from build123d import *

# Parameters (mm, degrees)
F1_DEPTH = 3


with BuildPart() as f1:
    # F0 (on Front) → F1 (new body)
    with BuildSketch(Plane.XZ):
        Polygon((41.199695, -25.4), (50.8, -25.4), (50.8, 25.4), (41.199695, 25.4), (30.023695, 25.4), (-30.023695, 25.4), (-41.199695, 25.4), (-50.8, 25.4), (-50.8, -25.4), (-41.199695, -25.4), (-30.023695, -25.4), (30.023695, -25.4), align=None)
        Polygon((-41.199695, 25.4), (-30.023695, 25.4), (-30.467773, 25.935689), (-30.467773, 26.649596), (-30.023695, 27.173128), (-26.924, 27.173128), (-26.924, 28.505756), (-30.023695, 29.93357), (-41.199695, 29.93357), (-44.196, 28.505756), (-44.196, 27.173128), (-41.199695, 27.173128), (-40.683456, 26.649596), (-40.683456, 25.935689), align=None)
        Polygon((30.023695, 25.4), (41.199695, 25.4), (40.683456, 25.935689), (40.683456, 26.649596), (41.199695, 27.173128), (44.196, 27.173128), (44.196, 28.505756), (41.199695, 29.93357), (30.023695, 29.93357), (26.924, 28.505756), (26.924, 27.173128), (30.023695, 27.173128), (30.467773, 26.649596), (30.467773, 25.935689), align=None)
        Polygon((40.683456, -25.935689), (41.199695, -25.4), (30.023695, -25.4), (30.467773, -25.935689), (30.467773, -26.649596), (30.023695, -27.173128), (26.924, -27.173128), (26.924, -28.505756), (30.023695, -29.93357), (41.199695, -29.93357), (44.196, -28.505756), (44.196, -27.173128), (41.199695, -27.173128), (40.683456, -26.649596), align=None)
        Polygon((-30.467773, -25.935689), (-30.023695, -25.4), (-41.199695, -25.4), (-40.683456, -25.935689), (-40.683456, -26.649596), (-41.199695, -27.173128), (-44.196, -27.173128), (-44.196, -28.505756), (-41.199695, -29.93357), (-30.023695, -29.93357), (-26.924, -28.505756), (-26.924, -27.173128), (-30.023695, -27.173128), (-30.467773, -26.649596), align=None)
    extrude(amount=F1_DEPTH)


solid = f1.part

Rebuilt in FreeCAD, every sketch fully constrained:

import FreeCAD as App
import Part
import Sketcher
from FreeCAD import Vector
Q = App.Units.Quantity


def add_polygon(sketch, points):
    """Adds a closed chain of lines whose ends are joined by coincident constraints."""
    first, n = sketch.GeometryCount, len(points)
    for a, b in zip(points, points[1:] + points[:1]):
        sketch.addGeometry(Part.LineSegment(App.Vector(*a, 0), App.Vector(*b, 0)), False)
    for i in range(n):
        sketch.addConstraint(Sketcher.Constraint("Coincident", first + i, 2, first + (i + 1) % n, 1))

doc = App.newDocument("Part")
body = doc.addObject("PartDesign::Body", "Body")

# Sketch on XZ plane
sketch1 = body.newObject("Sketcher::SketchObject", "Sketch")
sketch1.AttachmentSupport = (doc.getObject("XZ_Plane"), [""])
sketch1.MapMode = "FlatFace"
add_polygon(sketch1, [(50.8, -25.4), (50.8, 25.4), (41.2, 25.4), (40.7, 25.9), (40.7, 26.6), (41.2, 27.2), (44.2, 27.2), (44.2, 28.5), (41.2, 29.9), (30, 29.9), (26.9, 28.5), (26.9, 27.2), (30, 27.2), (30.5, 26.6), (30.5, 25.9), (30, 25.4), (-30, 25.4), (-30.5, 25.9), (-30.5, 26.6), (-30, 27.2), (-26.9, 27.2), (-26.9, 28.5), (-30, 29.9), (-41.2, 29.9), (-44.2, 28.5), (-44.2, 27.2), (-41.2, 27.2), (-40.7, 26.6), (-40.7, 25.9), (-41.2, 25.4), (-50.8, 25.4), (-50.8, -25.4), (-41.2, -25.4), (-40.7, -25.9), (-40.7, -26.6), (-41.2, -27.2), (-44.2, -27.2), (-44.2, -28.5), (-41.2, -29.9), (-30, -29.9), (-26.9, -28.5), (-26.9, -27.2), (-30, -27.2), (-30.5, -26.6), (-30.5, -25.9), (-30, -25.4), (30, -25.4), (30.5, -25.9), (30.5, -26.6), (30, -27.2), (26.9, -27.2), (26.9, -28.5), (30, -29.9), (41.2, -29.9), (44.2, -28.5), (44.2, -27.2), (41.2, -27.2), (40.7, -26.6), (40.7, -25.9), (41.2, -25.4)])  # lines 0-59
sketch1.addConstraint([
    Sketcher.Constraint("Vertical", 0),
    Sketcher.Constraint("Horizontal", 1),
    Sketcher.Constraint("Vertical", 3),
    Sketcher.Constraint("Horizontal", 5),
    Sketcher.Constraint("Vertical", 6),
    Sketcher.Constraint("Horizontal", 8),
    Sketcher.Constraint("Vertical", 10),
    Sketcher.Constraint("Horizontal", 11),
    Sketcher.Constraint("Vertical", 13),
    Sketcher.Constraint("Horizontal", 15),
    Sketcher.Constraint("Vertical", 17),
    Sketcher.Constraint("Horizontal", 19),
    Sketcher.Constraint("Vertical", 20),
    Sketcher.Constraint("Horizontal", 22),
    Sketcher.Constraint("Vertical", 24),
    Sketcher.Constraint("Horizontal", 25),
    Sketcher.Constraint("Vertical", 27),
    Sketcher.Constraint("Horizontal", 29),
    Sketcher.Constraint("Vertical", 30),
    Sketcher.Constraint("Horizontal", 31),
    Sketcher.Constraint("Vertical", 33),
    Sketcher.Constraint("Horizontal", 35),
    Sketcher.Constraint("Vertical", 36),
    Sketcher.Constraint("Horizontal", 38),
    Sketcher.Constraint("Vertical", 40),
    Sketcher.Constraint("Horizontal", 41),
    Sketcher.Constraint("Vertical", 43),
    Sketcher.Constraint("Horizontal", 45),
    Sketcher.Constraint("Vertical", 47),
    Sketcher.Constraint("Horizontal", 49),
    Sketcher.Constraint("Vertical", 50),
    Sketcher.Constraint("Horizontal", 52),
    Sketcher.Constraint("Vertical", 54),
    Sketcher.Constraint("Horizontal", 55),
    Sketcher.Constraint("Vertical", 57),
    Sketcher.Constraint("Horizontal", 59),
    Sketcher.Constraint("Symmetric", 0, 2, 30, 2, -1, 1),
    Sketcher.Constraint("Symmetric", 2, 2, 32, 2, -1, 1),
    Sketcher.Constraint("Symmetric", 4, 2, 34, 2, -1, 1),
    Sketcher.Constraint("Symmetric", 6, 2, 36, 2, -1, 1),
    Sketcher.Constraint("Symmetric", 7, 2, 37, 2, -1, 1),
    Sketcher.Constraint("Symmetric", 9, 2, 39, 2, -1, 1),
    Sketcher.Constraint("Symmetric", 11, 2, 41, 2, -1, 1),
    Sketcher.Constraint("Symmetric", 12, 2, 42, 2, -1, 1),
    Sketcher.Constraint("Symmetric", 14, 2, 44, 2, -1, 1),
    Sketcher.Constraint("Symmetric", 16, 2, 46, 2, -1, 1),
    Sketcher.Constraint("Symmetric", 18, 2, 48, 2, -1, 1),
    Sketcher.Constraint("Symmetric", 20, 2, 50, 2, -1, 1),
    Sketcher.Constraint("Symmetric", 21, 2, 51, 2, -1, 1),
    Sketcher.Constraint("Symmetric", 23, 2, 53, 2, -1, 1),
    Sketcher.Constraint("Symmetric", 25, 2, 55, 2, -1, 1),
    Sketcher.Constraint("Symmetric", 26, 2, 56, 2, -1, 1),
    Sketcher.Constraint("Symmetric", 28, 2, 58, 2, -1, 1),
    Sketcher.Constraint("Symmetric", 13, 2, 16, 2, -2),
    Sketcher.Constraint("Symmetric", 11, 2, 18, 2, -2),
    Sketcher.Constraint("Symmetric", 9, 2, 20, 2, -2),
    Sketcher.Constraint("Symmetric", 8, 2, 21, 2, -2),
    Sketcher.Constraint("Symmetric", 6, 2, 23, 2, -2),
    Sketcher.Constraint("Symmetric", 4, 2, 25, 2, -2),
    Sketcher.Constraint("Symmetric", 3, 2, 26, 2, -2),
    Sketcher.Constraint("Symmetric", 1, 2, 28, 2, -2),
    Sketcher.Constraint("Parallel", 2, 32),
    Sketcher.Constraint("Parallel", 4, 34),
    Sketcher.Constraint("Parallel", 9, 39),
    Sketcher.Constraint("Parallel", 14, 44),
    Sketcher.Constraint("Parallel", 16, 46),
    Sketcher.Constraint("Parallel", 18, 48),
    Sketcher.Constraint("Parallel", 23, 53),
    Sketcher.Constraint("Parallel", 28, 58),
    Sketcher.Constraint("Horizontal", 6, 2, 9, 2),
    Sketcher.Constraint("Horizontal", 5, 2, 10, 2),
    Sketcher.Constraint("Horizontal", 3, 2, 12, 2),
    Sketcher.Constraint("Horizontal", 2, 2, 13, 2),
    Sketcher.Constraint("Horizontal", 1, 2, 14, 2),
    Sketcher.Constraint("Horizontal", 12, 2, 17, 2),
    Sketcher.Constraint("Horizontal", 16, 2, 27, 2),
    Sketcher.Constraint("Vertical", 1, 2, 4, 2),
    Sketcher.Constraint("Vertical", 4, 2, 7, 2),
    Sketcher.Constraint("Vertical", 8, 2, 11, 2),
    Sketcher.Constraint("Vertical", 11, 2, 14, 2),
    Sketcher.Constraint("Vertical", 15, 2, 18, 2),
    Sketcher.Constraint("Vertical", 22, 2, 25, 2),
    Sketcher.Constraint("DistanceY", 0, 1, 0, 2, Q("2 in")),
    Sketcher.Constraint("DistanceX", -1, 1, 0, 2, Q("2 in")),
    Sketcher.Constraint("DistanceX", 8, 2, 8, 1, Q("0.44 in")),
    Sketcher.Constraint("DistanceX", -1, 1, 5, 2, Q("1.74 in")),
    Sketcher.Constraint("DistanceX", -1, 1, 9, 2, Q("1.06 in")),
    Sketcher.Constraint("DistanceX", 15, 2, 15, 1, 60.04739),
    Sketcher.Constraint("DistanceY", 6, 1, 6, 2, 1.332628),
    Sketcher.Constraint("Distance", 7, 3.319111),
    Sketcher.Constraint("Distance", 14, 0.695822),
    Sketcher.Constraint("DistanceY", 3, 1, 3, 2, 0.713907),
    Sketcher.Constraint("DistanceY", -1, 1, 2, 2, 25.935689),
    Sketcher.Constraint("DistanceY", -1, 1, 7, 2, 29.93357),
    Sketcher.Constraint("DistanceX", 2, 2, 1, 2, 0.516239),
])
pad1 = body.newObject("PartDesign::Pad", "Pad")
pad1.Profile = sketch1
pad1.Length = 3

doc.recompute()
